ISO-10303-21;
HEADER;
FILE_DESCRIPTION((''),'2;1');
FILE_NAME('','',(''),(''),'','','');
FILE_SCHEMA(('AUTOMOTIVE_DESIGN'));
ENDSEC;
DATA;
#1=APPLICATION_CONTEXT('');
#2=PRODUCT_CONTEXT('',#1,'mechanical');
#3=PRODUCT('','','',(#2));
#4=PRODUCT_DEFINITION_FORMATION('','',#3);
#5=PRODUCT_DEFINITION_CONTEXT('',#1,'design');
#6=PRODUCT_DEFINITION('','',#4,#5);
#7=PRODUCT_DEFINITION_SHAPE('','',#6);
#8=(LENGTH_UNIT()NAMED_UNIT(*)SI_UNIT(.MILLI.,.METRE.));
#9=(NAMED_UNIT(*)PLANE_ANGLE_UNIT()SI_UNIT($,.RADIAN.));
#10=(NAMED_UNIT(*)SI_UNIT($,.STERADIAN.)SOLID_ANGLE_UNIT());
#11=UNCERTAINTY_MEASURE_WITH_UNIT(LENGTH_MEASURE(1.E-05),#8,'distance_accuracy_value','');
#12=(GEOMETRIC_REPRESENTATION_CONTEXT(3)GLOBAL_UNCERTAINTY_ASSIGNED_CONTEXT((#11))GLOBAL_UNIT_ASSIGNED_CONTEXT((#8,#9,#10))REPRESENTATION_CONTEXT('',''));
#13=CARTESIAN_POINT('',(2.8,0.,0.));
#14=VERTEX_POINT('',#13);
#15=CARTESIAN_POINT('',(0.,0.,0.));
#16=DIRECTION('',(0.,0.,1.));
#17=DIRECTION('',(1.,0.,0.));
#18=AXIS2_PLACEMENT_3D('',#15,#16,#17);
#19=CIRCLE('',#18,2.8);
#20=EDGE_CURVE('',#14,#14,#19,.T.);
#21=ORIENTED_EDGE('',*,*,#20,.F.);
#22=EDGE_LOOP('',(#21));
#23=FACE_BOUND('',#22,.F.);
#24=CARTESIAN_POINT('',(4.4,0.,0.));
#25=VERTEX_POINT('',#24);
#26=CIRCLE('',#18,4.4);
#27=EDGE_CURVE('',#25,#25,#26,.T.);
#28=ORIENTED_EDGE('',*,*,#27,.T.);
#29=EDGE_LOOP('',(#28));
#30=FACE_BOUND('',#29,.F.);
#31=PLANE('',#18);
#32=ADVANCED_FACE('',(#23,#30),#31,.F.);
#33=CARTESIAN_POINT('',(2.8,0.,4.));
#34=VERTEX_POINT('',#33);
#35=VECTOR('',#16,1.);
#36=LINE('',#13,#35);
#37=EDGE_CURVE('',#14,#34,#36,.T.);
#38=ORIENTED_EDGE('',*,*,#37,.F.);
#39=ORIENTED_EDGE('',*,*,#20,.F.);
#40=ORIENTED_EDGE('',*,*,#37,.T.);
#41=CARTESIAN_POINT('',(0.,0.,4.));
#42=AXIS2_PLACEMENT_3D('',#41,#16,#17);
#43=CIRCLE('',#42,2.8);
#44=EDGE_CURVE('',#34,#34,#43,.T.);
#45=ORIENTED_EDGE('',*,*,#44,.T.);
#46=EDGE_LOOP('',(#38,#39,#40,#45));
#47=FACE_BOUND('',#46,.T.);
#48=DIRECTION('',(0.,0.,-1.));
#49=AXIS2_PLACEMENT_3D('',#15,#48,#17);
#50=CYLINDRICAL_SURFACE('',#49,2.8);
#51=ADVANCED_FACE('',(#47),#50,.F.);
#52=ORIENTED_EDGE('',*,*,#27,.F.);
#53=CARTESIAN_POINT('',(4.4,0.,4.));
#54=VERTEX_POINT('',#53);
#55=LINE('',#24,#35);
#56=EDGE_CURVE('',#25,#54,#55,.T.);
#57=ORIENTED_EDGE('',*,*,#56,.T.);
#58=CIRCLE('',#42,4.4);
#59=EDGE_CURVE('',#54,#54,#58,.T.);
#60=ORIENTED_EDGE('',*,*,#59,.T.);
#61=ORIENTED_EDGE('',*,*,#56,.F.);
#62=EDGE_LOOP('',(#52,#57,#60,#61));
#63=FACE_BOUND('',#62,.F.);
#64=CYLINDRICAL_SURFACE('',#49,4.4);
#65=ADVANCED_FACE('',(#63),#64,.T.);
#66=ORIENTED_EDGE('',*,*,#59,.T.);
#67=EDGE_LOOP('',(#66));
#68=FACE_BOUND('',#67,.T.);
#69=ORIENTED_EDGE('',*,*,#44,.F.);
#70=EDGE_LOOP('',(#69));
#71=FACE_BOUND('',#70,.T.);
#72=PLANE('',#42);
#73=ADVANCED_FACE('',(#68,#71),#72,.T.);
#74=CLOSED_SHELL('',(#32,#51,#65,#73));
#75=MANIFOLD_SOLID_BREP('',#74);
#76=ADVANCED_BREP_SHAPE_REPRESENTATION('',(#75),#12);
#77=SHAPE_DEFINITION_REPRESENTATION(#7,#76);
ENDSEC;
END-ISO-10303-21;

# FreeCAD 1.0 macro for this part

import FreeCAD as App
import Part
import Sketcher

doc = App.newDocument("Part")
body = doc.addObject("PartDesign::Body", "Body")

# Sketch on XY plane
sketch1 = doc.addObject("Sketcher::SketchObject", "Sketch")
body.addObject(sketch1)
sketch1.AttachmentSupport = (doc.XY_Plane, [""])
sketch1.MapMode = "FlatFace"
sketch1.addGeometry([
    Part.Circle(App.Vector(0, 0, 0), App.Vector(0, 0, 1), 4.4),
    Part.Circle(App.Vector(0, 0, 0), App.Vector(0, 0, 1), 2.8),
], False)
sketch1.addConstraint([
    Sketcher.Constraint("Coincident", 0, 3, -1, 1),
    Sketcher.Constraint("Coincident", 1, 3, -1, 1),
    Sketcher.Constraint("Diameter", 0, 8.8),
    Sketcher.Constraint("Diameter", 1, 5.6),
])
pad1 = doc.addObject("PartDesign::Pad", "Pad")
body.addObject(pad1)
pad1.Profile = sketch1
pad1.Length = 4

doc.recompute()
